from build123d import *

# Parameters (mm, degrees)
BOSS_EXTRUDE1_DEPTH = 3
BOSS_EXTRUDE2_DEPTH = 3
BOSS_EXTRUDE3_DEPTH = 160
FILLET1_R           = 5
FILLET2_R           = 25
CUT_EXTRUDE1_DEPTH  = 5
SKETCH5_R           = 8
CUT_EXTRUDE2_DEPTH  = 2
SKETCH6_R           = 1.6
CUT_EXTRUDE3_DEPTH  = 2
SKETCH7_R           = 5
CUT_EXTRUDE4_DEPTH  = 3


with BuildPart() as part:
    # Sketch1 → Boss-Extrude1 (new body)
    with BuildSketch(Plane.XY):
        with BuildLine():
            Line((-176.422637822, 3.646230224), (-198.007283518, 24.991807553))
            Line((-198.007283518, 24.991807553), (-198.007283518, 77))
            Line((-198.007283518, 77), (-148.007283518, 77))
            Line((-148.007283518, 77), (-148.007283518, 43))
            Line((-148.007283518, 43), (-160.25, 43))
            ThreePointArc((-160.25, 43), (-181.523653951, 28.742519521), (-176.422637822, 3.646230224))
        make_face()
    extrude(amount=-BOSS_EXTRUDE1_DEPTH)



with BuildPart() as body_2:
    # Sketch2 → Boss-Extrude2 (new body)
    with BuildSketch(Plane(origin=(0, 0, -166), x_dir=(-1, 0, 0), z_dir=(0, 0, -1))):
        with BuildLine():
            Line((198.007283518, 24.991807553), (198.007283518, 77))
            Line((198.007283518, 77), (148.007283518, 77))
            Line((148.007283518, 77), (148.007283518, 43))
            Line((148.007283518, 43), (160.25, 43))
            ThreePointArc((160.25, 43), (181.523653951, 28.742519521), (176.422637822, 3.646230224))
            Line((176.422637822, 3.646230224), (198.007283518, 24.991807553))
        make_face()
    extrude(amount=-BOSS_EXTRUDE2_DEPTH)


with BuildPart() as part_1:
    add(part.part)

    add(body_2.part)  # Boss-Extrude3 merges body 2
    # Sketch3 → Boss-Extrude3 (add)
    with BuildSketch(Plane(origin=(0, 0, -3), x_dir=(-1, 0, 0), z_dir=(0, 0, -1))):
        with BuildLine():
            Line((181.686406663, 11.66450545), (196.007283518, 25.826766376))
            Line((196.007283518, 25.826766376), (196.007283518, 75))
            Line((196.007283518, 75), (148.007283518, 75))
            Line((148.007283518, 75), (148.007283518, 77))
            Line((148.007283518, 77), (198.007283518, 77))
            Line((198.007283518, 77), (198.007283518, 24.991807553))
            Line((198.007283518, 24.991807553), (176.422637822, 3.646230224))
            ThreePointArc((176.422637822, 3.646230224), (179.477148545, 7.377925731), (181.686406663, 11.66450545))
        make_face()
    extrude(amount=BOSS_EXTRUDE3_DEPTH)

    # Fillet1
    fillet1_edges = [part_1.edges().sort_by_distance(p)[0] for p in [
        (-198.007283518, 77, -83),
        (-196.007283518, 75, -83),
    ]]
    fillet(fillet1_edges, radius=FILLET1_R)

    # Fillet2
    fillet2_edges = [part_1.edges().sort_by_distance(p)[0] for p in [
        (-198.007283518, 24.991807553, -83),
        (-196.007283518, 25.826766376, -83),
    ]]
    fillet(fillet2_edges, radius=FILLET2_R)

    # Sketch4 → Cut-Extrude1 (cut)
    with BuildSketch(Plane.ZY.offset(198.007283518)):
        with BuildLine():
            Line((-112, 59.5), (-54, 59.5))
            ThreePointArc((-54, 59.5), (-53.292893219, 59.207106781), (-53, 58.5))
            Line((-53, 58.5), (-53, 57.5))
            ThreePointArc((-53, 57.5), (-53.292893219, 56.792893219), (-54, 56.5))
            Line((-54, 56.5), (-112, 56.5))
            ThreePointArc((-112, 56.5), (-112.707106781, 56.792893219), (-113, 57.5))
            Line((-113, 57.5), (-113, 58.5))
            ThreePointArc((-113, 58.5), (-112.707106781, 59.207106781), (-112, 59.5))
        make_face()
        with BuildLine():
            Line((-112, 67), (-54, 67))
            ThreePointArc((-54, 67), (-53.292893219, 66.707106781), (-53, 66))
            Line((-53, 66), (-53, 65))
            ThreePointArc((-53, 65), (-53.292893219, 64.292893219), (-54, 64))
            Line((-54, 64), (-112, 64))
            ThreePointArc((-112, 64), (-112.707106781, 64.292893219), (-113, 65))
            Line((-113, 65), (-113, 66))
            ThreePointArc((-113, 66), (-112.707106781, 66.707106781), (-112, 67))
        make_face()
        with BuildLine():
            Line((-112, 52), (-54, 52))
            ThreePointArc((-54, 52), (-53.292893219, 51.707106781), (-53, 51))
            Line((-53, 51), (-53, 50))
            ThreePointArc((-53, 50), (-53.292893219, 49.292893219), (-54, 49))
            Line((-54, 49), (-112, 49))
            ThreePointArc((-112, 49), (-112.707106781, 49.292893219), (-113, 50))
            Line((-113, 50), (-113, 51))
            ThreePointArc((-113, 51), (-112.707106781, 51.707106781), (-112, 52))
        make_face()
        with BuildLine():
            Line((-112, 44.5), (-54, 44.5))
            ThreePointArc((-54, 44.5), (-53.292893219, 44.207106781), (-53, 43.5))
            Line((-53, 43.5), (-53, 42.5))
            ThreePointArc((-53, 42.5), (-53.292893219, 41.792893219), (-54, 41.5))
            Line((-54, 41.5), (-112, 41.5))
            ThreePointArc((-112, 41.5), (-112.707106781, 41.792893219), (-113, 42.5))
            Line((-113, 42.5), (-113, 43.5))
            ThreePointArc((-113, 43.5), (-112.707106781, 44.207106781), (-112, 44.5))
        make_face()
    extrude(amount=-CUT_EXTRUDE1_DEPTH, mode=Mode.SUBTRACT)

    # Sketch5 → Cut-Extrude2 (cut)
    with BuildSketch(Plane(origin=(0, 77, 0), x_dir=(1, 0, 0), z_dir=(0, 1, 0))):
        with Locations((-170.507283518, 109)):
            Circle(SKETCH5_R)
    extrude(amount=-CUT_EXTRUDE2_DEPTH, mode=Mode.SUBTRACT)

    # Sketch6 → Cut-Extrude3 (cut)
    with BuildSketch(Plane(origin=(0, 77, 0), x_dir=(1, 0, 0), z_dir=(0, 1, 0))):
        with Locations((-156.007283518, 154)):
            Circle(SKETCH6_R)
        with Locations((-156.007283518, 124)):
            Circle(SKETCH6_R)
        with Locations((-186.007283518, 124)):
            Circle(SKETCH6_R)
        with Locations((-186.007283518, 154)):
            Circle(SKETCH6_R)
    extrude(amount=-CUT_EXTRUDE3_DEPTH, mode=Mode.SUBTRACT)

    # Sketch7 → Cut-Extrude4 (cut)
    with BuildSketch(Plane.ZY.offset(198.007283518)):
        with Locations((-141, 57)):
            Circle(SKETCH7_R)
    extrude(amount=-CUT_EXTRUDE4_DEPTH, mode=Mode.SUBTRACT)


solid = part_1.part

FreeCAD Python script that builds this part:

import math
import FreeCAD as App
import Part
import Sketcher

V = App.Vector


def edges_at(feature, points):
    """Names of the edges that pass closest to the given points."""
    edges = feature.Shape.Edges
    near = lambda p: min(range(len(edges)), key=lambda i: edges[i].distToShape(Part.Vertex(*p))[0])
    return sorted({f"Edge{near(p) + 1}" for p in points})

doc = App.newDocument("Part")
body = doc.addObject("PartDesign::Body", "Body")

# Sketch on XY plane
sketch1 = doc.addObject("Sketcher::SketchObject", "Sketch")
body.addObject(sketch1)
sketch1.AttachmentSupport = (doc.XY_Plane, [""])
sketch1.MapMode = "FlatFace"
sketch1.addGeometry([
    Part.LineSegment(V(-198, 25, 0), V(-176, 4, 0)),  # 0
    Part.ArcOfCircle(Part.Circle(V(-160, 20, 0), V(0, 0, 1), 23), math.radians(90), math.radians(225)),  # 1
    Part.LineSegment(V(-160, 43, 0), V(-148, 43, 0)),  # 2
    Part.LineSegment(V(-148, 43, 0), V(-148, 77, 0)),  # 3
    Part.LineSegment(V(-148, 77, 0), V(-198, 77, 0)),  # 4
    Part.LineSegment(V(-198, 77, 0), V(-198, 25, 0)),  # 5
], False)
sketch1.addConstraint([
    Sketcher.Constraint("Tangent", 0, 2, 1, 2),
    Sketcher.Constraint("Tangent", 1, 1, 2, 1),
    Sketcher.Constraint("Coincident", 2, 2, 3, 1),
    Sketcher.Constraint("Coincident", 3, 2, 4, 1),
    Sketcher.Constraint("Coincident", 4, 2, 5, 1),
    Sketcher.Constraint("Coincident", 5, 2, 0, 1),
    Sketcher.Constraint("Horizontal", 2),
    Sketcher.Constraint("Vertical", 3),
    Sketcher.Constraint("Horizontal", 4),
    Sketcher.Constraint("Vertical", 5),
    Sketcher.Constraint("Radius", 1, 23.0),
    Sketcher.Constraint("DistanceX", 4, 2, 4, 1, 50.0),
    Sketcher.Constraint("DistanceY", 3, 1, 3, 2, 34.0),
    Sketcher.Constraint("DistanceY", -1, 1, 1, 3, 20.0),
    Sketcher.Constraint("DistanceX", 1, 3, -1, 1, 160.25),
    Sketcher.Constraint("DistanceX", 2, 1, 2, 2, 12.242716),
    Sketcher.Constraint("DistanceY", 5, 2, 5, 1, 52.008192),
])
pad1 = doc.addObject("PartDesign::Pad", "Pad")
body.addObject(pad1)
pad1.Profile = sketch1
pad1.Length = 3
pad1.Reversed = True
body2 = doc.addObject("PartDesign::Body", "Body001")

# Sketch on XY plane
sketch2 = doc.addObject("Sketcher::SketchObject", "Sketch001")
body2.addObject(sketch2)
sketch2.AttachmentSupport = (doc.getObject("XY_Plane001"), [""])
sketch2.MapMode = "FlatFace"
sketch2.AttachmentOffset = App.Placement(V(0, 0, -166), App.Rotation())
sketch2.addGeometry([
    Part.LineSegment(V(-198, 25, 0), V(-198, 77, 0)),  # 0
    Part.LineSegment(V(-198, 77, 0), V(-148, 77, 0)),  # 1
    Part.LineSegment(V(-148, 77, 0), V(-148, 43, 0)),  # 2
    Part.LineSegment(V(-148, 43, 0), V(-160, 43, 0)),  # 3
    Part.ArcOfCircle(Part.Circle(V(-160, 20, 0), V(0, 0, 1), 23), math.radians(90), math.radians(225)),  # 4
    Part.LineSegment(V(-176, 4, 0), V(-198, 25, 0)),  # 5
], False)
sketch2.addConstraint([
    Sketcher.Constraint("Coincident", 0, 2, 1, 1),
    Sketcher.Constraint("Coincident", 1, 2, 2, 1),
    Sketcher.Constraint("Coincident", 2, 2, 3, 1),
    Sketcher.Constraint("Tangent", 3, 2, 4, 1),
    Sketcher.Constraint("Tangent", 4, 2, 5, 1),
    Sketcher.Constraint("Coincident", 5, 2, 0, 1),
    Sketcher.Constraint("Vertical", 0),
    Sketcher.Constraint("Horizontal", 1),
    Sketcher.Constraint("Vertical", 2),
    Sketcher.Constraint("Horizontal", 3),
    Sketcher.Constraint("Radius", 4, 23.0),
    Sketcher.Constraint("DistanceX", 1, 1, 1, 2, 50.0),
    Sketcher.Constraint("DistanceY", 2, 2, 2, 1, 34.0),
    Sketcher.Constraint("DistanceY", -1, 1, 4, 3, 20.0),
    Sketcher.Constraint("DistanceX", 4, 3, -1, 1, 160.25),
    Sketcher.Constraint("DistanceX", 3, 2, 3, 1, 12.242716),
    Sketcher.Constraint("DistanceY", 0, 1, 0, 2, 52.008192),
])
pad2 = doc.addObject("PartDesign::Pad", "Pad001")
body2.addObject(pad2)
pad2.Profile = sketch2
pad2.Length = 3
body.AllowCompound = True
doc.recompute()

boolean = doc.addObject("PartDesign::Boolean", "Boolean")
body.addObject(boolean)
boolean.Type = "Fuse"
boolean.addObjects([body2])

# Sketch on XY plane
sketch3 = doc.addObject("Sketcher::SketchObject", "Sketch002")
body.addObject(sketch3)
sketch3.AttachmentSupport = (doc.XY_Plane, [""])
sketch3.MapMode = "FlatFace"
sketch3.AttachmentOffset = App.Placement(V(0, 0, -3), App.Rotation())
sketch3.addGeometry([
    Part.LineSegment(V(-196, 25.8, 0), V(-181.7, 11.7, 0)),  # 0
    Part.ArcOfCircle(Part.Circle(V(-160.3, 20, 0), V(0, 0, 1), 23), math.radians(-159), math.radians(-135)),  # 1
    Part.LineSegment(V(-176.4, 3.6, 0), V(-198, 25, 0)),  # 2
    Part.LineSegment(V(-198, 25, 0), V(-198, 77, 0)),  # 3
    Part.LineSegment(V(-198, 77, 0), V(-148, 77, 0)),  # 4
    Part.LineSegment(V(-148, 77, 0), V(-148, 75, 0)),  # 5
    Part.LineSegment(V(-148, 75, 0), V(-196, 75, 0)),  # 6
    Part.LineSegment(V(-196, 75, 0), V(-196, 25.8, 0)),  # 7
], False)
sketch3.addConstraint([
    Sketcher.Constraint("Coincident", 0, 2, 1, 1),
    Sketcher.Constraint("Tangent", 1, 2, 2, 1),
    Sketcher.Constraint("Coincident", 2, 2, 3, 1),
    Sketcher.Constraint("Coincident", 3, 2, 4, 1),
    Sketcher.Constraint("Coincident", 4, 2, 5, 1),
    Sketcher.Constraint("Coincident", 5, 2, 6, 1),
    Sketcher.Constraint("Coincident", 6, 2, 7, 1),
    Sketcher.Constraint("Coincident", 7, 2, 0, 1),
    Sketcher.Constraint("Vertical", 3),
    Sketcher.Constraint("Horizontal", 4),
    Sketcher.Constraint("Vertical", 5),
    Sketcher.Constraint("Horizontal", 6),
    Sketcher.Constraint("Vertical", 7),
    Sketcher.Constraint("Parallel", 0, 2),
    Sketcher.Constraint("Radius", 1, 23.0),
    Sketcher.Constraint("DistanceX", 4, 1, 4, 2, 50.0),
    Sketcher.Constraint("DistanceX", 6, 2, 6, 1, 48.0),
    Sketcher.Constraint("DistanceY", 5, 2, 5, 1, 2.0),
    Sketcher.Constraint("DistanceY", -1, 1, 1, 3, 20.0),
    Sketcher.Constraint("DistanceY", -1, 1, 3, 2, 77.0),
    Sketcher.Constraint("DistanceX", 1, 3, -1, 1, 160.25),
    Sketcher.Constraint("DistanceY", 3, 1, 3, 2, 52.008192),
    Sketcher.Constraint("DistanceY", 7, 2, 7, 1, 49.173234),
    Sketcher.Constraint("DistanceY", -1, 1, 1, 2, 3.64623),
])
pad3 = doc.addObject("PartDesign::Pad", "Pad002")
body.addObject(pad3)
pad3.Profile = sketch3
pad3.Length = 160
pad3.Reversed = True
doc.recompute()

fillet = doc.addObject("PartDesign::Fillet", "Fillet")
body.addObject(fillet)
fillet.Base = (pad3, edges_at(pad3, [(-198.007, 77, -83), (-196.007, 75, -83)]))
fillet.Radius = 5
doc.recompute()

fillet2 = doc.addObject("PartDesign::Fillet", "Fillet001")
body.addObject(fillet2)
fillet2.Base = (fillet, edges_at(fillet, [(-198.007, 24.992, -83), (-196.007, 25.827, -83)]))
fillet2.Radius = 25

# Sketch on YZ plane
sketch4 = doc.addObject("Sketcher::SketchObject", "Sketch003")
body.addObject(sketch4)
sketch4.AttachmentSupport = (doc.YZ_Plane, [""])
sketch4.MapMode = "FlatFace"
sketch4.AttachmentOffset = App.Placement(V(0, 0, -198.007284), App.Rotation())
sketch4.addGeometry([
    Part.LineSegment(V(59.5, -54, 0), V(59.5, -112, 0)),  # 0
    Part.ArcOfCircle(Part.Circle(V(58.5, -112, 0), V(0, 0, 1), 1), math.radians(-90), math.radians(0)),  # 1
    Part.LineSegment(V(58.5, -113, 0), V(57.5, -113, 0)),  # 2
    Part.ArcOfCircle(Part.Circle(V(57.5, -112, 0), V(0, 0, 1), 1), math.radians(-180), math.radians(-90)),  # 3
    Part.LineSegment(V(56.5, -112, 0), V(56.5, -54, 0)),  # 4
    Part.ArcOfCircle(Part.Circle(V(57.5, -54, 0), V(0, 0, 1), 1), math.radians(90), math.radians(180)),  # 5
    Part.LineSegment(V(57.5, -53, 0), V(58.5, -53, 0)),  # 6
    Part.ArcOfCircle(Part.Circle(V(58.5, -54, 0), V(0, 0, 1), 1), math.radians(0), math.radians(90)),  # 7
    Part.LineSegment(V(67, -54, 0), V(67, -112, 0)),  # 8
    Part.ArcOfCircle(Part.Circle(V(66, -112, 0), V(0, 0, 1), 1), math.radians(-90), math.radians(0)),  # 9
    Part.LineSegment(V(66, -113, 0), V(65, -113, 0)),  # 10
    Part.ArcOfCircle(Part.Circle(V(65, -112, 0), V(0, 0, 1), 1), math.radians(-180), math.radians(-90)),  # 11
    Part.LineSegment(V(64, -112, 0), V(64, -54, 0)),  # 12
    Part.ArcOfCircle(Part.Circle(V(65, -54, 0), V(0, 0, 1), 1), math.radians(90), math.radians(180)),  # 13
    Part.LineSegment(V(65, -53, 0), V(66, -53, 0)),  # 14
    Part.ArcOfCircle(Part.Circle(V(66, -54, 0), V(0, 0, 1), 1), math.radians(0), math.radians(90)),  # 15
    Part.LineSegment(V(52, -54, 0), V(52, -112, 0)),  # 16
    Part.ArcOfCircle(Part.Circle(V(51, -112, 0), V(0, 0, 1), 1), math.radians(-90), math.radians(0)),  # 17
    Part.LineSegment(V(51, -113, 0), V(50, -113, 0)),  # 18
    Part.ArcOfCircle(Part.Circle(V(50, -112, 0), V(0, 0, 1), 1), math.radians(-180), math.radians(-90)),  # 19
    Part.LineSegment(V(49, -112, 0), V(49, -54, 0)),  # 20
    Part.ArcOfCircle(Part.Circle(V(50, -54, 0), V(0, 0, 1), 1), math.radians(90), math.radians(180)),  # 21
    Part.LineSegment(V(50, -53, 0), V(51, -53, 0)),  # 22
    Part.ArcOfCircle(Part.Circle(V(51, -54, 0), V(0, 0, 1), 1), math.radians(0), math.radians(90)),  # 23
    Part.LineSegment(V(44.5, -54, 0), V(44.5, -112, 0)),  # 24
    Part.ArcOfCircle(Part.Circle(V(43.5, -112, 0), V(0, 0, 1), 1), math.radians(-90), math.radians(0)),  # 25
    Part.LineSegment(V(43.5, -113, 0), V(42.5, -113, 0)),  # 26
    Part.ArcOfCircle(Part.Circle(V(42.5, -112, 0), V(0, 0, 1), 1), math.radians(-180), math.radians(-90)),  # 27
    Part.LineSegment(V(41.5, -112, 0), V(41.5, -54, 0)),  # 28
    Part.ArcOfCircle(Part.Circle(V(42.5, -54, 0), V(0, 0, 1), 1), math.radians(90), math.radians(180)),  # 29
    Part.LineSegment(V(42.5, -53, 0), V(43.5, -53, 0)),  # 30
    Part.ArcOfCircle(Part.Circle(V(43.5, -54, 0), V(0, 0, 1), 1), math.radians(0), math.radians(90)),  # 31
], False)
sketch4.addConstraint([
    Sketcher.Constraint("Tangent", 0, 2, 1, 2),
    Sketcher.Constraint("Tangent", 1, 1, 2, 1),
    Sketcher.Constraint("Tangent", 2, 2, 3, 2),
    Sketcher.Constraint("Tangent", 3, 1, 4, 1),
    Sketcher.Constraint("Tangent", 4, 2, 5, 2),
    Sketcher.Constraint("Tangent", 5, 1, 6, 1),
    Sketcher.Constraint("Tangent", 6, 2, 7, 2),
    Sketcher.Constraint("Tangent", 7, 1, 0, 1),
    Sketcher.Constraint("Tangent", 8, 2, 9, 2),
    Sketcher.Constraint("Tangent", 9, 1, 10, 1),
    Sketcher.Constraint("Tangent", 10, 2, 11, 2),
    Sketcher.Constraint("Tangent", 11, 1, 12, 1),
    Sketcher.Constraint("Tangent", 12, 2, 13, 2),
    Sketcher.Constraint("Tangent", 13, 1, 14, 1),
    Sketcher.Constraint("Tangent", 14, 2, 15, 2),
    Sketcher.Constraint("Tangent", 15, 1, 8, 1),
    Sketcher.Constraint("Tangent", 16, 2, 17, 2),
    Sketcher.Constraint("Tangent", 17, 1, 18, 1),
    Sketcher.Constraint("Tangent", 18, 2, 19, 2),
    Sketcher.Constraint("Tangent", 19, 1, 20, 1),
    Sketcher.Constraint("Tangent", 20, 2, 21, 2),
    Sketcher.Constraint("Tangent", 21, 1, 22, 1),
    Sketcher.Constraint("Tangent", 22, 2, 23, 2),
    Sketcher.Constraint("Tangent", 23, 1, 16, 1),
    Sketcher.Constraint("Tangent", 24, 2, 25, 2),
    Sketcher.Constraint("Tangent", 25, 1, 26, 1),
    Sketcher.Constraint("Tangent", 26, 2, 27, 2),
    Sketcher.Constraint("Tangent", 27, 1, 28, 1),
    Sketcher.Constraint("Tangent", 28, 2, 29, 2),
    Sketcher.Constraint("Tangent", 29, 1, 30, 1),
    Sketcher.Constraint("Tangent", 30, 2, 31, 2),
    Sketcher.Constraint("Tangent", 31, 1, 24, 1),
    Sketcher.Constraint("Vertical", 0),
    Sketcher.Constraint("Horizontal", 2),
    Sketcher.Constraint("Vertical", 4),
    Sketcher.Constraint("Horizontal", 6),
    Sketcher.Constraint("Vertical", 8),
    Sketcher.Constraint("Horizontal", 10),
    Sketcher.Constraint("Vertical", 12),
    Sketcher.Constraint("Horizontal", 14),
    Sketcher.Constraint("Vertical", 16),
    Sketcher.Constraint("Horizontal", 18),
    Sketcher.Constraint("Vertical", 20),
    Sketcher.Constraint("Horizontal", 22),
    Sketcher.Constraint("Vertical", 24),
    Sketcher.Constraint("Horizontal", 26),
    Sketcher.Constraint("Vertical", 28),
    Sketcher.Constraint("Horizontal", 30),
    Sketcher.Constraint("Equal", 1, 3),
    Sketcher.Constraint("Equal", 3, 5),
    Sketcher.Constraint("Equal", 5, 7),
    Sketcher.Constraint("Equal", 7, 9),
    Sketcher.Constraint("Equal", 9, 11),
    Sketcher.Constraint("Equal", 11, 13),
    Sketcher.Constraint("Equal", 13, 15),
    Sketcher.Constraint("Equal", 15, 17),
    Sketcher.Constraint("Equal", 17, 19),
    Sketcher.Constraint("Equal", 19, 21),
    Sketcher.Constraint("Equal", 21, 23),
    Sketcher.Constraint("Equal", 23, 25),
    Sketcher.Constraint("Equal", 25, 27),
    Sketcher.Constraint("Equal", 27, 29),
    Sketcher.Constraint("Equal", 29, 31),
    Sketcher.Constraint("Horizontal", 3, 3, 9, 3),
    Sketcher.Constraint("Horizontal", 7, 3, 13, 3),
    Sketcher.Constraint("Horizontal", 11, 3, 17, 3),
    Sketcher.Constraint("Horizontal", 15, 3, 21, 3),
    Sketcher.Constraint("Horizontal", 19, 3, 25, 3),
    Sketcher.Constraint("Horizontal", 23, 3, 29, 3),
    Sketcher.Constraint("Equal", 6, 10),
    Sketcher.Constraint("Equal", 14, 18),
    Sketcher.Constraint("Equal", 22, 26),
    Sketcher.Constraint("Radius", 1, 1.0),
    Sketcher.Constraint("DistanceX", 2, 2, 2, 1, 1.0),
    Sketcher.Constraint("DistanceY", 0, 2, 0, 1, 58.0),
    Sketcher.Constraint("DistanceY", 1, 3, -1, 1, 112.0),
    Sketcher.Constraint("DistanceX", -1, 1, 9, 3, 66.0),
    Sketcher.Constraint("DistanceX", -1, 1, 17, 3, 51.0),
    Sketcher.Constraint("DistanceX", 25, 3, 3, 3, 14.0),
    Sketcher.Constraint("DistanceX", -1, 1, 1, 3, 58.5),
])
pocket1 = doc.addObject("PartDesign::Pocket", "Pocket")
body.addObject(pocket1)
pocket1.Profile = sketch4
pocket1.Length = 5
pocket1.Reversed = True

# Sketch on XZ plane
sketch5 = doc.addObject("Sketcher::SketchObject", "Sketch004")
body.addObject(sketch5)
sketch5.AttachmentSupport = (doc.XZ_Plane, [""])
sketch5.MapMode = "FlatFace"
sketch5.AttachmentOffset = App.Placement(V(0, 0, -77), App.Rotation())
sketch5.addGeometry(Part.Circle(V(-171, -109, 0), V(0, 0, 1), 8), False)
sketch5.addConstraint([
    Sketcher.Constraint("Diameter", 0, 16.0),
    Sketcher.Constraint("DistanceY", 0, 3, -1, 1, 109.0),
    Sketcher.Constraint("DistanceX", 0, 3, -1, 1, 170.507284),
])
pocket2 = doc.addObject("PartDesign::Pocket", "Pocket001")
body.addObject(pocket2)
pocket2.Profile = sketch5
pocket2.Length = 2
pocket2.Reversed = True

# Sketch on XZ plane
sketch6 = doc.addObject("Sketcher::SketchObject", "Sketch005")
body.addObject(sketch6)
sketch6.AttachmentSupport = (doc.XZ_Plane, [""])
sketch6.MapMode = "FlatFace"
sketch6.AttachmentOffset = App.Placement(V(0, 0, -77), App.Rotation())
sketch6.addGeometry([
    Part.Circle(V(-156, -154, 0), V(0, 0, 1), 1.6),
    Part.Circle(V(-156, -124, 0), V(0, 0, 1), 1.6),
    Part.Circle(V(-186, -124, 0), V(0, 0, 1), 1.6),
    Part.Circle(V(-186, -154, 0), V(0, 0, 1), 1.6),
], False)
sketch6.addConstraint([
    Sketcher.Constraint("Equal", 0, 1),
    Sketcher.Constraint("Equal", 1, 2),
    Sketcher.Constraint("Equal", 2, 3),
    Sketcher.Constraint("Horizontal", 1, 3, 2, 3),
    Sketcher.Constraint("Horizontal", 0, 3, 3, 3),
    Sketcher.Constraint("Vertical", 0, 3, 1, 3),
    Sketcher.Constraint("Vertical", 2, 3, 3, 3),
    Sketcher.Constraint("Diameter", 0, 3.2),
    Sketcher.Constraint("DistanceY", 0, 3, -1, 1, 154.0),
    Sketcher.Constraint("DistanceY", 1, 3, -1, 1, 124.0),
    Sketcher.Constraint("DistanceX", 2, 3, 1, 3, 30.0),
    Sketcher.Constraint("DistanceX", 0, 3, -1, 1, 156.007284),
])
pocket3 = doc.addObject("PartDesign::Pocket", "Pocket002")
body.addObject(pocket3)
pocket3.Profile = sketch6
pocket3.Length = 2
pocket3.Reversed = True

# Sketch on YZ plane
sketch7 = doc.addObject("Sketcher::SketchObject", "Sketch006")
body.addObject(sketch7)
sketch7.AttachmentSupport = (doc.YZ_Plane, [""])
sketch7.MapMode = "FlatFace"
sketch7.AttachmentOffset = App.Placement(V(0, 0, -198.007284), App.Rotation())
sketch7.addGeometry(Part.Circle(V(57, -141, 0), V(0, 0, 1), 5), False)
sketch7.addConstraint([
    Sketcher.Constraint("Diameter", 0, 10.0),
    Sketcher.Constraint("DistanceX", -1, 1, 0, 3, 57.0),
    Sketcher.Constraint("DistanceY", 0, 3, -1, 1, 141.0),
])
pocket4 = doc.addObject("PartDesign::Pocket", "Pocket003")
body.addObject(pocket4)
pocket4.Profile = sketch7
pocket4.Length = 3
pocket4.Reversed = True

doc.recompute()
